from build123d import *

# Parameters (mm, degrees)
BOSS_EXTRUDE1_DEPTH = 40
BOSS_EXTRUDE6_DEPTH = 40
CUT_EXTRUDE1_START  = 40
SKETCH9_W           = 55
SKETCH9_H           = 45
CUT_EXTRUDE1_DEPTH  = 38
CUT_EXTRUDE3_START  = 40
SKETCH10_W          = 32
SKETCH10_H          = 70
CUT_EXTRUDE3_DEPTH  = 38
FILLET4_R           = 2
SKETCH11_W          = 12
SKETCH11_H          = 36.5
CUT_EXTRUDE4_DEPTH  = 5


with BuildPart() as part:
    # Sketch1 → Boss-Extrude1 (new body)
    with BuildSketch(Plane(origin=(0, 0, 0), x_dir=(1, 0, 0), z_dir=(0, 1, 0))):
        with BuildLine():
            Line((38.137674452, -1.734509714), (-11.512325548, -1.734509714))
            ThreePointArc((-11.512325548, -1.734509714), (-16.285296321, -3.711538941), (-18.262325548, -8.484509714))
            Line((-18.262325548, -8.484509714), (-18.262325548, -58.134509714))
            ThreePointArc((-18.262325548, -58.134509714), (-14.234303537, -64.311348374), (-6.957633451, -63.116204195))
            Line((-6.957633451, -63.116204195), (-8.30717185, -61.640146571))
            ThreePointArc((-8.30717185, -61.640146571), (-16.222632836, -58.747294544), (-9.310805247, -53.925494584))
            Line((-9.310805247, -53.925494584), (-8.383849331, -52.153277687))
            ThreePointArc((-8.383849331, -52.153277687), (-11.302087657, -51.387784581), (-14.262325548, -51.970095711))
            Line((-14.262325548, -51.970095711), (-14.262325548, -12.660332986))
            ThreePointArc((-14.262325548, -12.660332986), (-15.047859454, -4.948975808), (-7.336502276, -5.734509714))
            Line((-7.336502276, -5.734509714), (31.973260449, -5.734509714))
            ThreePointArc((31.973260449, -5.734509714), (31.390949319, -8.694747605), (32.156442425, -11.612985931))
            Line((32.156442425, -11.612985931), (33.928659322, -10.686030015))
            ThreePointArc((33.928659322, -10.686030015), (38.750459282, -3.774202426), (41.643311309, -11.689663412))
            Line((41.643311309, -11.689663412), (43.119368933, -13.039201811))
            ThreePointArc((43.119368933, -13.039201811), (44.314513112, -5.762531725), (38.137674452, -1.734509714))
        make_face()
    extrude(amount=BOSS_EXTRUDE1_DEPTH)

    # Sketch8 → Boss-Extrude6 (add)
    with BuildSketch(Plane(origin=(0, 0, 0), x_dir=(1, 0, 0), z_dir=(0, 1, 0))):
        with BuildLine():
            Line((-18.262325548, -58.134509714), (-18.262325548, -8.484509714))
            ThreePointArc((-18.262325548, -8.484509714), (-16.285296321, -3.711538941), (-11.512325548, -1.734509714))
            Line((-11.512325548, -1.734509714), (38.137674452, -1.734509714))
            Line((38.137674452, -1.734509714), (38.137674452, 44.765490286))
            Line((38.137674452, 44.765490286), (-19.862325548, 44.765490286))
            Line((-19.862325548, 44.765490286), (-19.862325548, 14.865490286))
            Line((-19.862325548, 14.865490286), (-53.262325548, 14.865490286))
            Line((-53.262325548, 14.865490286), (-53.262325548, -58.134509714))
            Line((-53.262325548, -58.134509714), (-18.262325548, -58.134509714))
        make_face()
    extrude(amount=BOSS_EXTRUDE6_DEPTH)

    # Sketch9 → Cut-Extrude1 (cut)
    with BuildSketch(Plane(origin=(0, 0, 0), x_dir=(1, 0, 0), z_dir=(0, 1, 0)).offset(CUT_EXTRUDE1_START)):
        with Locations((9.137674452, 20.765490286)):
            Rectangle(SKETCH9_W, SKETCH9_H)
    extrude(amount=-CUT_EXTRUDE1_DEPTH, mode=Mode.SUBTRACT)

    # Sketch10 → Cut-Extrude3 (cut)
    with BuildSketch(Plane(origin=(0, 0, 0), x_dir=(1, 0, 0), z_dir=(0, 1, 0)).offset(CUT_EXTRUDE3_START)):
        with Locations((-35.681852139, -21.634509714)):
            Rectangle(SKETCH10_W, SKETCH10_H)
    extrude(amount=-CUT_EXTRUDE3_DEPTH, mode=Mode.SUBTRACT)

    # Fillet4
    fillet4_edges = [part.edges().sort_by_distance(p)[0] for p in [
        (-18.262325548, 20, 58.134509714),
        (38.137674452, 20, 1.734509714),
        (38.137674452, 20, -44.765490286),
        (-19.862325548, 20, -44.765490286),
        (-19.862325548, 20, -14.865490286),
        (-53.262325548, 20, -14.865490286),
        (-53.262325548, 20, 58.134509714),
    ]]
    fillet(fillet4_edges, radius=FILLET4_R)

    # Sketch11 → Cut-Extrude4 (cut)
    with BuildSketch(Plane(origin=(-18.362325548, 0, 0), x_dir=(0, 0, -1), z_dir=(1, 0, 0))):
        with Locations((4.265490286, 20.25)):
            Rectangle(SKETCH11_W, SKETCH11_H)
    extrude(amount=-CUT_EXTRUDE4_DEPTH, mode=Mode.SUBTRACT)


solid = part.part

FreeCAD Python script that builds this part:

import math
import FreeCAD as App
import Part
import Sketcher

V = App.Vector


def edges_at(feature, points):
    """Names of the edges that pass closest to the given points."""
    edges = feature.Shape.Edges
    near = lambda p: min(range(len(edges)), key=lambda i: edges[i].distToShape(Part.Vertex(*p))[0])
    return sorted({f"Edge{near(p) + 1}" for p in points})


def add_polygon(sketch, points):
    """Adds a closed chain of lines whose ends are joined by coincident constraints."""
    first, n = sketch.GeometryCount, len(points)
    for a, b in zip(points, points[1:] + points[:1]):
        sketch.addGeometry(Part.LineSegment(App.Vector(*a, 0), App.Vector(*b, 0)), False)
    for i in range(n):
        sketch.addConstraint(Sketcher.Constraint("Coincident", first + i, 2, first + (i + 1) % n, 1))

doc = App.newDocument("Part")
params = doc.addObject("Spreadsheet::Sheet", "Params")
for row, (alias, value) in enumerate([
    ("sketch1_radius", "5 mm"),
    ("sketch1_radius2", "6.75 mm"),
    ("sketch1_radius3", "4.75 mm"),
    ("sketch1_width", "49.65 mm"),
    ("pad1_length", "40 mm"),
    ("sketch2_width", "58 mm"),
    ("sketch2_width2", "35 mm"),
    ("sketch2_height", "73 mm"),
    ("sketch2_radius", "6.75 mm"),
    ("sketch2_width3", "33.4 mm"),
    ("pad2_length", "40 mm"),
    ("sketch3_width", "55 mm"),
    ("sketch3_height", "45 mm"),
    ("pocket1_length", "38 mm"),
    ("sketch4_width", "32 mm"),
    ("sketch4_height", "70 mm"),
    ("pocket2_length", "38 mm"),
    ("fillet_radius", "2 mm"),
    ("sketch5_height", "12 mm"),
    ("sketch5_width", "36.5 mm"),
    ("pocket3_length", "5 mm"),
], start=1):
    params.set(f"A{row}", alias)
    params.set(f"B{row}", "=" + value)
    params.setAlias(f"B{row}", alias)

body = doc.addObject("PartDesign::Body", "Body")

# Sketch on XZ plane
sketch1 = body.newObject("Sketcher::SketchObject", "Sketch")
sketch1.AttachmentSupport = (doc.getObject("XZ_Plane"), [""])
sketch1.MapMode = "FlatFace"
sketch1.addGeometry([
    Part.LineSegment(V(38.1, 1.7, 0), V(-11.5, 1.7, 0)),  # 0
    Part.ArcOfCircle(Part.Circle(V(-11.5, 8.5, 0), V(0, 0, 1), 6.8), math.radians(180), math.radians(270)),  # 1
    Part.LineSegment(V(-18.3, 8.5, 0), V(-18.3, 58.1, 0)),  # 2
    Part.ArcOfCircle(Part.Circle(V(-11.5, 58.1, 0), V(0, 0, 1), 6.8), math.radians(48), math.radians(180)),  # 3
    Part.LineSegment(V(-7, 63.1, 0), V(-8.3, 61.6, 0)),  # 4
    Part.ArcOfCircle(Part.Circle(V(-11.5, 58.1, 0), V(0, 0, 1), 4.8), math.radians(48), math.radians(298)),  # 5
    Part.LineSegment(V(-9.3, 53.9, 0), V(-8.4, 52.2, 0)),  # 6
    Part.ArcOfCircle(Part.Circle(V(-11.5, 58.1, 0), V(0, 0, 1), 6.8), math.radians(-114), math.radians(-62)),  # 7
    Part.LineSegment(V(-14.3, 52, 0), V(-14.3, 12.7, 0)),  # 8
    Part.ArcOfCircle(Part.Circle(V(-11.5, 8.5, 0), V(0, 0, 1), 5), math.radians(123), math.radians(327)),  # 9
    Part.LineSegment(V(-7.3, 5.7, 0), V(32, 5.7, 0)),  # 10
    Part.ArcOfCircle(Part.Circle(V(38.1, 8.5, 0), V(0, 0, 1), 6.8), math.radians(152), math.radians(204)),  # 11
    Part.LineSegment(V(32.2, 11.6, 0), V(33.9, 10.7, 0)),  # 12
    Part.ArcOfCircle(Part.Circle(V(38.1, 8.5, 0), V(0, 0, 1), 4.8), math.radians(152), math.radians(402)),  # 13
    Part.LineSegment(V(41.6, 11.7, 0), V(43.1, 13, 0)),  # 14
    Part.ArcOfCircle(Part.Circle(V(38.1, 8.5, 0), V(0, 0, 1), 6.8), math.radians(-90), math.radians(42)),  # 15
], False)
sketch1.addConstraint([
    Sketcher.Constraint("Tangent", 0, 2, 1, 2),
    Sketcher.Constraint("Tangent", 1, 1, 2, 1),
    Sketcher.Constraint("Tangent", 2, 2, 3, 2),
    Sketcher.Constraint("Coincident", 3, 1, 4, 1),
    Sketcher.Constraint("Coincident", 4, 2, 5, 1),
    Sketcher.Constraint("Coincident", 5, 2, 6, 1),
    Sketcher.Constraint("Coincident", 6, 2, 7, 2),
    Sketcher.Constraint("Coincident", 7, 1, 8, 1),
    Sketcher.Constraint("Coincident", 8, 2, 9, 1),
    Sketcher.Constraint("Coincident", 9, 2, 10, 1),
    Sketcher.Constraint("Coincident", 10, 2, 11, 2),
    Sketcher.Constraint("Coincident", 11, 1, 12, 1),
    Sketcher.Constraint("Coincident", 12, 2, 13, 1),
    Sketcher.Constraint("Coincident", 13, 2, 14, 1),
    Sketcher.Constraint("Coincident", 14, 2, 15, 2),
    Sketcher.Constraint("Tangent", 15, 1, 0, 1),
    Sketcher.Constraint("Horizontal", 0),
    Sketcher.Constraint("Vertical", 2),
    Sketcher.Constraint("Vertical", 8),
    Sketcher.Constraint("Horizontal", 10),
    Sketcher.Constraint("Coincident", 5, 3, 3, 3),
    Sketcher.Constraint("Coincident", 7, 3, 3, 3),
    Sketcher.Constraint("Coincident", 9, 3, 1, 3),
    Sketcher.Constraint("Coincident", 13, 3, 11, 3),
    Sketcher.Constraint("Coincident", 15, 3, 11, 3),
    Sketcher.Constraint("Equal", 1, 3),
    Sketcher.Constraint("Equal", 3, 7),
    Sketcher.Constraint("Equal", 7, 11),
    Sketcher.Constraint("Equal", 5, 13),
    Sketcher.Constraint("Equal", 11, 15),
    Sketcher.Constraint("Equal", 0, 2),
    Sketcher.Constraint("Equal", 10, 8),
    Sketcher.Constraint("Radius", 9, 5.0),
    Sketcher.Constraint("Radius", 1, 6.75),
    Sketcher.Constraint("Radius", 5, 4.75),
    Sketcher.Constraint("DistanceX", 1, 1, 8, 2, 4.0),
    Sketcher.Constraint("DistanceX", 0, 2, 0, 1, 49.65),
    Sketcher.Constraint("DistanceY", -1, 1, 14, 2, 13.039202),
    Sketcher.Constraint("DistanceY", 7, 1, 5, 2, 1.955399),
    Sketcher.Constraint("DistanceX", 10, 2, 12, 2, 1.955399),
    Sketcher.Constraint("DistanceY", -1, 1, 1, 3, 8.48451),
    Sketcher.Constraint("DistanceX", 4, 2, -1, 1, 8.307172),
    Sketcher.Constraint("DistanceX", 6, 2, -1, 1, 8.383849),
    Sketcher.Constraint("DistanceX", -1, 1, 10, 2, 31.97326),
    Sketcher.Constraint("DistanceX", -1, 1, 13, 2, 41.643311),
    Sketcher.Constraint("DistanceX", 4, 2, 3, 1, 1.349538),
    Sketcher.Constraint("DistanceX", 10, 2, 11, 1, 0.183182),
])
sketch1.setExpression("Constraints[32]", "Params.sketch1_radius")
sketch1.setExpression("Constraints[33]", "Params.sketch1_radius2")
sketch1.setExpression("Constraints[34]", "Params.sketch1_radius3")
sketch1.setExpression("Constraints[36]", "Params.sketch1_width")
pad1 = body.newObject("PartDesign::Pad", "Pad")
pad1.Profile = sketch1
pad1.setExpression("Length", "Params.pad1_length")
pad1.Reversed = True

# Sketch on XZ plane
sketch2 = body.newObject("Sketcher::SketchObject", "Sketch001")
sketch2.AttachmentSupport = (doc.getObject("XZ_Plane"), [""])
sketch2.MapMode = "FlatFace"
sketch2.addGeometry([
    Part.LineSegment(V(-18, 58, 0), V(-18, 8, 0)),  # 0
    Part.ArcOfCircle(Part.Circle(V(-12, 8, 0), V(0, 0, 1), 7), math.radians(180), math.radians(270)),  # 1
    Part.LineSegment(V(-12, 2, 0), V(38, 2, 0)),  # 2
    Part.LineSegment(V(38, 2, 0), V(38, -45, 0)),  # 3
    Part.LineSegment(V(38, -45, 0), V(-20, -45, 0)),  # 4
    Part.LineSegment(V(-20, -45, 0), V(-20, -15, 0)),  # 5
    Part.LineSegment(V(-20, -15, 0), V(-53, -15, 0)),  # 6
    Part.LineSegment(V(-53, -15, 0), V(-53, 58, 0)),  # 7
    Part.LineSegment(V(-53, 58, 0), V(-18, 58, 0)),  # 8
], False)
sketch2.addConstraint([
    Sketcher.Constraint("Tangent", 0, 2, 1, 1),
    Sketcher.Constraint("Tangent", 1, 2, 2, 1),
    Sketcher.Constraint("Coincident", 2, 2, 3, 1),
    Sketcher.Constraint("Coincident", 3, 2, 4, 1),
    Sketcher.Constraint("Coincident", 4, 2, 5, 1),
    Sketcher.Constraint("Coincident", 5, 2, 6, 1),
    Sketcher.Constraint("Coincident", 6, 2, 7, 1),
    Sketcher.Constraint("Coincident", 7, 2, 8, 1),
    Sketcher.Constraint("Coincident", 8, 2, 0, 1),
    Sketcher.Constraint("Vertical", 0),
    Sketcher.Constraint("Horizontal", 2),
    Sketcher.Constraint("Vertical", 3),
    Sketcher.Constraint("Horizontal", 4),
    Sketcher.Constraint("Vertical", 5),
    Sketcher.Constraint("Horizontal", 6),
    Sketcher.Constraint("Vertical", 7),
    Sketcher.Constraint("Horizontal", 8),
    Sketcher.Constraint("Equal", 2, 0),
    Sketcher.Constraint("DistanceX", 4, 2, 4, 1, 58.0),
    Sketcher.Constraint("DistanceX", 8, 1, 8, 2, 35.0),
    Sketcher.Constraint("DistanceY", 7, 1, 7, 2, 73.0),
    Sketcher.Constraint("Radius", 1, 6.75),
    Sketcher.Constraint("DistanceX", 6, 2, 6, 1, 33.4),
    Sketcher.Constraint("DistanceY", 3, 2, 3, 1, 46.5),
    Sketcher.Constraint("DistanceY", -1, 1, 1, 3, 8.48451),
    Sketcher.Constraint("DistanceX", 1, 3, -1, 1, 11.512326),
])
sketch2.setExpression("Constraints[18]", "Params.sketch2_width")
sketch2.setExpression("Constraints[19]", "Params.sketch2_width2")
sketch2.setExpression("Constraints[20]", "Params.sketch2_height")
sketch2.setExpression("Constraints[21]", "Params.sketch2_radius")
sketch2.setExpression("Constraints[22]", "Params.sketch2_width3")
pad2 = body.newObject("PartDesign::Pad", "Pad001")
pad2.Profile = sketch2
pad2.setExpression("Length", "Params.pad2_length")
pad2.Reversed = True

# Sketch on XZ plane
sketch3 = body.newObject("Sketcher::SketchObject", "Sketch002")
sketch3.AttachmentSupport = (doc.getObject("XZ_Plane"), [""])
sketch3.MapMode = "FlatFace"
sketch3.AttachmentOffset = App.Placement(V(0, 0, -40), App.Rotation())
add_polygon(sketch3, [(-18, -43), (-18, 2), (37, 2), (37, -43)])  # lines 0-3
sketch3.addConstraint([
    Sketcher.Constraint("Vertical", 0),
    Sketcher.Constraint("Horizontal", 1),
    Sketcher.Constraint("Vertical", 2),
    Sketcher.Constraint("Horizontal", 3),
    Sketcher.Constraint("DistanceX", 1, 1, 1, 2, 55.0),
    Sketcher.Constraint("DistanceY", 0, 1, 0, 2, 45.0),
    Sketcher.Constraint("DistanceY", -1, 1, 0, 2, 1.73451),
    Sketcher.Constraint("DistanceX", 0, 2, -1, 1, 18.362326),
])
sketch3.setExpression("Constraints[8]", "Params.sketch3_width")
sketch3.setExpression("Constraints[9]", "Params.sketch3_height")
pocket1 = body.newObject("PartDesign::Pocket", "Pocket")
pocket1.Profile = sketch3
pocket1.setExpression("Length", "Params.pocket1_length")
pocket1.Reversed = True

# Sketch on XZ plane
sketch4 = body.newObject("Sketcher::SketchObject", "Sketch003")
sketch4.AttachmentSupport = (doc.getObject("XZ_Plane"), [""])
sketch4.MapMode = "FlatFace"
sketch4.AttachmentOffset = App.Placement(V(0, 0, -40), App.Rotation())
add_polygon(sketch4, [(-52, -13), (-52, 57), (-20, 57), (-20, -13)])  # lines 0-3
sketch4.addConstraint([
    Sketcher.Constraint("Vertical", 0),
    Sketcher.Constraint("Horizontal", 1),
    Sketcher.Constraint("Vertical", 2),
    Sketcher.Constraint("Horizontal", 3),
    Sketcher.Constraint("DistanceX", 1, 1, 1, 2, 32.0),
    Sketcher.Constraint("DistanceY", 0, 1, 0, 2, 70.0),
    Sketcher.Constraint("DistanceY", -1, 1, 0, 2, 56.63451),
    Sketcher.Constraint("DistanceX", 0, 2, -1, 1, 51.681852),
])
sketch4.setExpression("Constraints[8]", "Params.sketch4_width")
sketch4.setExpression("Constraints[9]", "Params.sketch4_height")
pocket2 = body.newObject("PartDesign::Pocket", "Pocket001")
pocket2.Profile = sketch4
pocket2.setExpression("Length", "Params.pocket2_length")
pocket2.Reversed = True
doc.recompute()

fillet = body.newObject("PartDesign::Fillet", "Fillet")
fillet.Base = (pocket2, edges_at(pocket2, [
    (-18.262, 20, 58.135),
    (38.138, 20, 1.735),
    (38.138, 20, -44.765),
    (-19.862, 20, -44.765),
    (-19.862, 20, -14.865),
    (-53.262, 20, -14.865),
    (-53.262, 20, 58.135),
]))
fillet.setExpression("Radius", "Params.fillet_radius")

# Sketch on YZ plane
sketch5 = body.newObject("Sketcher::SketchObject", "Sketch004")
sketch5.AttachmentSupport = (doc.getObject("YZ_Plane"), [""])
sketch5.MapMode = "FlatFace"
sketch5.AttachmentOffset = App.Placement(V(0, 0, -18.362326), App.Rotation())
add_polygon(sketch5, [(38, 2), (2, 2), (2, -10), (38, -10)])  # lines 0-3
sketch5.addConstraint([
    Sketcher.Constraint("Horizontal", 0),
    Sketcher.Constraint("Vertical", 1),
    Sketcher.Constraint("Horizontal", 2),
    Sketcher.Constraint("Vertical", 3),
    Sketcher.Constraint("DistanceY", 1, 2, 1, 1, 12.0),
    Sketcher.Constraint("DistanceX", 0, 2, 0, 1, 36.5),
    Sketcher.Constraint("DistanceX", -1, 1, 0, 2, 2.0),
    Sketcher.Constraint("DistanceY", -1, 1, 0, 2, 1.73451),
])
sketch5.setExpression("Constraints[8]", "Params.sketch5_height")
sketch5.setExpression("Constraints[9]", "Params.sketch5_width")
pocket3 = body.newObject("PartDesign::Pocket", "Pocket002")
pocket3.Profile = sketch5
pocket3.setExpression("Length", "Params.pocket3_length")

doc.recompute()
